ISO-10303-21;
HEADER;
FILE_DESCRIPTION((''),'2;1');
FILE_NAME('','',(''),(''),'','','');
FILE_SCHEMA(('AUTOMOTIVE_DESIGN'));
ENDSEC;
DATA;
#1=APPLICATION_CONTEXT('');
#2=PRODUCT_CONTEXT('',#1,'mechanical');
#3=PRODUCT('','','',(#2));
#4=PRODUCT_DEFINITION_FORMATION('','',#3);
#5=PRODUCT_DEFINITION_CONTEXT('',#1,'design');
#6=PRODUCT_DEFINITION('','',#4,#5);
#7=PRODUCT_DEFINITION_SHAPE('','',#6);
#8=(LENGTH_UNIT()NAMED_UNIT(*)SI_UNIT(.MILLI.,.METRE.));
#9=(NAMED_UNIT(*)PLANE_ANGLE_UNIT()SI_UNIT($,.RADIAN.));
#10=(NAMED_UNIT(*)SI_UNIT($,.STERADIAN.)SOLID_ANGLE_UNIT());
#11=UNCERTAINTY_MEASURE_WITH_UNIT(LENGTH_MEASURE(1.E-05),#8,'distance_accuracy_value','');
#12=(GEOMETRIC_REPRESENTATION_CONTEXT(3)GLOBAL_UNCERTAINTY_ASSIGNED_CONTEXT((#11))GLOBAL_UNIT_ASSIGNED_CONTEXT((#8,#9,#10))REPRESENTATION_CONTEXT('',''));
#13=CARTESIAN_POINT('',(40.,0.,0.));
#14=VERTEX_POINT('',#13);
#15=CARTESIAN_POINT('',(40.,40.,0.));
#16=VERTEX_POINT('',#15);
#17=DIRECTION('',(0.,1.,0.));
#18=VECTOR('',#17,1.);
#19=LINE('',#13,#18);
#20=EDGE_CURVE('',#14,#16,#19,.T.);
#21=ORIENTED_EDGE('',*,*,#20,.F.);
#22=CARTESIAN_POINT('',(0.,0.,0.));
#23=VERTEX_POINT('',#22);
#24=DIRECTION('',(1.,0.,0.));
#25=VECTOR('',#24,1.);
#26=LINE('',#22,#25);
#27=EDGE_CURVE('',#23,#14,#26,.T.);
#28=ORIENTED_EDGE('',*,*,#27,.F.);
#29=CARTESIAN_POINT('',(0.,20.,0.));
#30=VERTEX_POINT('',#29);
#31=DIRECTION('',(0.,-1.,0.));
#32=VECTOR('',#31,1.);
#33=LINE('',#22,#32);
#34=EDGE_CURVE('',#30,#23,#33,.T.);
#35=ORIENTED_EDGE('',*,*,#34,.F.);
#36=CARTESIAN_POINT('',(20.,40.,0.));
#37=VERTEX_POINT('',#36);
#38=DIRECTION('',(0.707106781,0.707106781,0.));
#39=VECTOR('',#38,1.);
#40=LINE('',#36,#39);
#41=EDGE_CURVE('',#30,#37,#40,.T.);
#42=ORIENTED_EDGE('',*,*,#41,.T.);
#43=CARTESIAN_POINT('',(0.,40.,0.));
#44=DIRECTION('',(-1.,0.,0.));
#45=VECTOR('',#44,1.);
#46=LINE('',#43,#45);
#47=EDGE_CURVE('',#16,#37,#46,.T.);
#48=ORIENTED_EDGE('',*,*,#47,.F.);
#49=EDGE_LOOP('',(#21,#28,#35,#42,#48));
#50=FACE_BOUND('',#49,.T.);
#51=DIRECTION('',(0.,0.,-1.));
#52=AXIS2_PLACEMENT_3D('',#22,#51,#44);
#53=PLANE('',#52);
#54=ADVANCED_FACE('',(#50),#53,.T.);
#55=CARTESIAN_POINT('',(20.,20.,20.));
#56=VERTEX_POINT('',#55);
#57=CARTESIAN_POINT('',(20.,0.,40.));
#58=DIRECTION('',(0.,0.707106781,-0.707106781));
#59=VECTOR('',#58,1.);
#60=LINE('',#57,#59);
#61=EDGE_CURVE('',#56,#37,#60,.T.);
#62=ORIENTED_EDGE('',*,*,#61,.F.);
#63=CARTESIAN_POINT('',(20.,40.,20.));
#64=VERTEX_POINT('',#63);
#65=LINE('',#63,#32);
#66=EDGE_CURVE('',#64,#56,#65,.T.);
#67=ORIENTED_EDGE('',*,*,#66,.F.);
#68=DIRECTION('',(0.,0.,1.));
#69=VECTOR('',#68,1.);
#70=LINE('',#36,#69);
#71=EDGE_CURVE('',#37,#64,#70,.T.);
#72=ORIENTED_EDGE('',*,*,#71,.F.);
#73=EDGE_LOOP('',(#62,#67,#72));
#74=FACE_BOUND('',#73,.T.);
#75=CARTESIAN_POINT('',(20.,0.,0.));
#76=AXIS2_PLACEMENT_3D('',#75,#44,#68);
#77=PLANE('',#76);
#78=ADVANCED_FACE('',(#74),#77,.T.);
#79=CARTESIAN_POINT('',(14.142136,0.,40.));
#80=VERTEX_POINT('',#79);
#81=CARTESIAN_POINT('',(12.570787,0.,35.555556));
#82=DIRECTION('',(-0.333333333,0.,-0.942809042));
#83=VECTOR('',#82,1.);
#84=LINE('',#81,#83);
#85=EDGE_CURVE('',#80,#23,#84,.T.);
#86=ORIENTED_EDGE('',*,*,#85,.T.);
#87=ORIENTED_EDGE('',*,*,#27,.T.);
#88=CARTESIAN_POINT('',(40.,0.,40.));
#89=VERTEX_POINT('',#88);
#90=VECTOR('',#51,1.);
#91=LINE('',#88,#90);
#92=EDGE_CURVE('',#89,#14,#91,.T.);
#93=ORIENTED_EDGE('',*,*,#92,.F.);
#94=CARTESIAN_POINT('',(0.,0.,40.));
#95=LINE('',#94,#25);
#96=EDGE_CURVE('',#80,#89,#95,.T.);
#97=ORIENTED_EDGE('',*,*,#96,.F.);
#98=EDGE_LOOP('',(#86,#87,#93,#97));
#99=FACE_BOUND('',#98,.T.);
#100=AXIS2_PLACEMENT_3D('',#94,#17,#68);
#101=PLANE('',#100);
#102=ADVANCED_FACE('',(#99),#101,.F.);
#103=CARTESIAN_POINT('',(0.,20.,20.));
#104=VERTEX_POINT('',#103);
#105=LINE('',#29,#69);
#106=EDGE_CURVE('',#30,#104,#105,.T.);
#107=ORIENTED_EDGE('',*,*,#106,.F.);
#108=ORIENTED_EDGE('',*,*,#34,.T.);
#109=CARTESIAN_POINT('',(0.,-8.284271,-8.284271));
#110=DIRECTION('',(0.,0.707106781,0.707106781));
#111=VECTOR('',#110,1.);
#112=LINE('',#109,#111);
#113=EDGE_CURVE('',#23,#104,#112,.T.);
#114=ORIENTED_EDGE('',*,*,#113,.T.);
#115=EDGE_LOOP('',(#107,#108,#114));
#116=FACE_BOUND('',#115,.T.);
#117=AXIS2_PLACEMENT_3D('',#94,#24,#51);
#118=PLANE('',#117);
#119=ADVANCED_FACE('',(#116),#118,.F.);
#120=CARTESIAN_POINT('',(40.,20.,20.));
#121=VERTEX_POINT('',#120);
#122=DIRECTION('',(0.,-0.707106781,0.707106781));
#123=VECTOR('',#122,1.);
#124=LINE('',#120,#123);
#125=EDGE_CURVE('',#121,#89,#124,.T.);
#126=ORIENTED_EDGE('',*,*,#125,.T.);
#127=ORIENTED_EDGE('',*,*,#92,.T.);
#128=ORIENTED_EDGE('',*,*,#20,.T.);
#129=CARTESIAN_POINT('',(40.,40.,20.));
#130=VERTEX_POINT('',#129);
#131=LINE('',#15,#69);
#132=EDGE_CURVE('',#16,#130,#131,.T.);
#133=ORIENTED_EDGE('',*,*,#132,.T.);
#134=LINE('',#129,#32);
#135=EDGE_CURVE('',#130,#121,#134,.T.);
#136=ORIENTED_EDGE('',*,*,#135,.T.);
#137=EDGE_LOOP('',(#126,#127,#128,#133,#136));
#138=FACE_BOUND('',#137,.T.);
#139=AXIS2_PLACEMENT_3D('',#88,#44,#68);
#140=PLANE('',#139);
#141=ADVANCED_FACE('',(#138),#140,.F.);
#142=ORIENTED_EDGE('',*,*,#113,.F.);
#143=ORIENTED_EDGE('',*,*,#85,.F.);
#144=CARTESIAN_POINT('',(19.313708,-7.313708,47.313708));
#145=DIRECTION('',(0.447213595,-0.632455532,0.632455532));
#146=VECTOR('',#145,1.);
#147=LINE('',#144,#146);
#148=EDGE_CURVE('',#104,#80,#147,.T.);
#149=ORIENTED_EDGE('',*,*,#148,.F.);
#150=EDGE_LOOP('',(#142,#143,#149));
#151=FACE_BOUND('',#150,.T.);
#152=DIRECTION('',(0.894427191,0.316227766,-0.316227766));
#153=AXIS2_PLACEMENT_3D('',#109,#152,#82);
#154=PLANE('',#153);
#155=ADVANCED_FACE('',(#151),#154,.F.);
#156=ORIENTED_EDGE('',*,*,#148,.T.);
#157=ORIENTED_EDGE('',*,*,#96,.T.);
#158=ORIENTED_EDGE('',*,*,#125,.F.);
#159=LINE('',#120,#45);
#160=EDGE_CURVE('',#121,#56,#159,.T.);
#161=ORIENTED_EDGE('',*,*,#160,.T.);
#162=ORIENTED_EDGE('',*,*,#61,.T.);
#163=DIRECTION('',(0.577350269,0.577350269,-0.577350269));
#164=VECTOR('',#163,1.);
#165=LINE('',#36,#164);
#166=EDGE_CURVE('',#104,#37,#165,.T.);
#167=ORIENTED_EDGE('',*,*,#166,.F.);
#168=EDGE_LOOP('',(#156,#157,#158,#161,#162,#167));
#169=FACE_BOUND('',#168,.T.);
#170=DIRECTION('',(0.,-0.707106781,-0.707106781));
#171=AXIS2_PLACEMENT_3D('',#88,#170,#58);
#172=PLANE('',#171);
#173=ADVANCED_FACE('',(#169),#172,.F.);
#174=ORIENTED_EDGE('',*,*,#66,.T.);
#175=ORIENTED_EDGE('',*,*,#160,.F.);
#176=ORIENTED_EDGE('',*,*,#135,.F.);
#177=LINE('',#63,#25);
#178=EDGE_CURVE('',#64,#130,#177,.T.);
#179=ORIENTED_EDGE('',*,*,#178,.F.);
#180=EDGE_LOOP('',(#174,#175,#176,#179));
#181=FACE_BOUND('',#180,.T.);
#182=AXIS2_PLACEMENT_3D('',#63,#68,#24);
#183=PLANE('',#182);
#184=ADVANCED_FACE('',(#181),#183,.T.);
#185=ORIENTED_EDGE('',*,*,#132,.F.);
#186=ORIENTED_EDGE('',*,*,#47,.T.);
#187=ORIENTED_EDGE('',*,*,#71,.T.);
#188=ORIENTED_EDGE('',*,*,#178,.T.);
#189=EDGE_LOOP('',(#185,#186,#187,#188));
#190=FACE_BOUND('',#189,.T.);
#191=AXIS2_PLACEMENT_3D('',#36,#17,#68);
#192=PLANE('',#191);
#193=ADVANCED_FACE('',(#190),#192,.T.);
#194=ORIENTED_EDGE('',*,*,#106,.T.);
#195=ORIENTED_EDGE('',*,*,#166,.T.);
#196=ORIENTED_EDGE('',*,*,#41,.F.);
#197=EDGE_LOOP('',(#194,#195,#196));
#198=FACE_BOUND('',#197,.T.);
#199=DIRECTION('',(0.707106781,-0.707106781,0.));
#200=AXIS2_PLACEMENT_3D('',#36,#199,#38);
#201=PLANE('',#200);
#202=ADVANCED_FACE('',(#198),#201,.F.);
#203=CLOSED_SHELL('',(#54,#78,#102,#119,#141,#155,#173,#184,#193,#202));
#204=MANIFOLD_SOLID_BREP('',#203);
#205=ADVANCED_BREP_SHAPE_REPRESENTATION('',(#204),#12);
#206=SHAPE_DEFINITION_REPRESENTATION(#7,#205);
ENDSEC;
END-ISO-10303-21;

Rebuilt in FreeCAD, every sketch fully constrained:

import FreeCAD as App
import Part
import Sketcher

V = App.Vector
Q = App.Units.Quantity

doc = App.newDocument("Part")
body = doc.addObject("PartDesign::Body", "Body")

# Sketch on XY plane
sketch1 = body.newObject("Sketcher::SketchObject", "Sketch")
sketch1.AttachmentSupport = (doc.getObject("XY_Plane"), [""])
sketch1.MapMode = "FlatFace"
sketch1.addGeometry([
    Part.LineSegment(V(0, 40, 0), V(0, 0, 0)),
    Part.LineSegment(V(0, 0, 0), V(40, 0, 0)),
    Part.LineSegment(V(40, 0, 0), V(40, 40, 0)),
    Part.LineSegment(V(40, 40, 0), V(0, 40, 0)),
], False)
sketch1.addConstraint([
    Sketcher.Constraint("Coincident", 0, 2, 1, 1),
    Sketcher.Constraint("Coincident", 1, 2, 2, 1),
    Sketcher.Constraint("Coincident", 2, 2, 3, 1),
    Sketcher.Constraint("Coincident", 3, 2, 0, 1),
    Sketcher.Constraint("Vertical", 0),
    Sketcher.Constraint("Horizontal", 1),
    Sketcher.Constraint("Vertical", 2),
    Sketcher.Constraint("Horizontal", 3),
    Sketcher.Constraint("Coincident", 0, 2, -1, 1),
    Sketcher.Constraint("Equal", 3, 0),
    Sketcher.Constraint("DistanceX", 1, 1, 1, 2, Q("40 mm")),
])
pad1 = body.newObject("PartDesign::Pad", "Pad")
pad1.Profile = sketch1
pad1.Length = 40

# Sketch on XY plane
sketch2 = body.newObject("Sketcher::SketchObject", "Sketch001")
sketch2.AttachmentSupport = (doc.getObject("XY_Plane"), [""])
sketch2.MapMode = "FlatFace"
sketch2.AttachmentOffset = App.Placement(V(0, 0, 40), App.Rotation())
sketch2.addGeometry([
    Part.LineSegment(V(0, 40, 0), V(0, 20, 0)),
    Part.LineSegment(V(0, 20, 0), V(20, 40, 0)),
    Part.LineSegment(V(20, 40, 0), V(0, 40, 0)),
], False)
sketch2.addConstraint([
    Sketcher.Constraint("Coincident", 0, 2, 1, 1),
    Sketcher.Constraint("Coincident", 1, 2, 2, 1),
    Sketcher.Constraint("Coincident", 2, 2, 0, 1),
    Sketcher.Constraint("Vertical", 0),
    Sketcher.Constraint("Horizontal", 2),
    Sketcher.Constraint("PointOnObject", 0, 2, -2),
    Sketcher.Constraint("Equal", 2, 0),
    Sketcher.Constraint("DistanceX", 2, 2, 2, 1, Q("20 mm")),
    Sketcher.Constraint("DistanceY", -1, 1, 0, 2, Q("20 mm")),
])
pocket1 = body.newObject("PartDesign::Pocket", "Pocket")
pocket1.Profile = sketch2
pocket1.Length = 40

# Sketch on YZ plane
sketch3 = body.newObject("Sketcher::SketchObject", "Sketch002")
sketch3.AttachmentSupport = (doc.getObject("YZ_Plane"), [""])
sketch3.MapMode = "FlatFace"
sketch3.addGeometry([
    Part.LineSegment(V(40, 0, 0), V(0, 40, 0)),
    Part.LineSegment(V(0, 40, 0), V(40, 40, 0)),
    Part.LineSegment(V(40, 40, 0), V(40, 0, 0)),
], False)
sketch3.addConstraint([
    Sketcher.Constraint("Coincident", 0, 2, 1, 1),
    Sketcher.Constraint("Coincident", 1, 2, 2, 1),
    Sketcher.Constraint("Coincident", 2, 2, 0, 1),
    Sketcher.Constraint("Horizontal", 1),
    Sketcher.Constraint("Vertical", 2),
    Sketcher.Constraint("PointOnObject", 0, 2, -2),
    Sketcher.Constraint("PointOnObject", 2, 2, -1),
    Sketcher.Constraint("Equal", 1, 2),
    Sketcher.Constraint("DistanceX", 1, 1, 1, 2, Q("40 mm")),
])
pocket2 = body.newObject("PartDesign::Pocket", "Pocket001")
pocket2.Profile = sketch3
pocket2.Length = 40
pocket2.Reversed = True

# Sketch on an angled plane
sketch4 = body.newObject("Sketcher::SketchObject", "Sketch003")
sketch4.Placement = App.Placement(V(0, 20, 20), App.Rotation(V(1, 0, 0), V(0, 0.707106781, -0.707106781), V(0, 0.707106781, 0.707106781), "ZXY"))
sketch4.addGeometry([
    Part.LineSegment(V(20, -40, 0), V(0, 0, 0)),
    Part.LineSegment(V(0, 0, 0), V(0, -40, 0)),
    Part.LineSegment(V(0, -40, 0), V(20, -40, 0)),
], False)
sketch4.addConstraint([
    Sketcher.Constraint("Coincident", 0, 2, 1, 1),
    Sketcher.Constraint("Coincident", 1, 2, 2, 1),
    Sketcher.Constraint("Coincident", 2, 2, 0, 1),
    Sketcher.Constraint("Vertical", 1),
    Sketcher.Constraint("Horizontal", 2),
    Sketcher.Constraint("Coincident", 0, 2, -1, 1),
    Sketcher.Constraint("DistanceX", 2, 1, 2, 2, Q("20 mm")),
    Sketcher.Constraint("DistanceY", 1, 2, 1, 1, Q("40 mm")),
])
pocket3 = body.newObject("PartDesign::Pocket", "Pocket002")
pocket3.Profile = sketch4
pocket3.Length = 40

# Sketch on YZ plane
sketch5 = body.newObject("Sketcher::SketchObject", "Sketch004")
sketch5.AttachmentSupport = (doc.getObject("YZ_Plane"), [""])
sketch5.MapMode = "FlatFace"
sketch5.AttachmentOffset = App.Placement(V(0, 0, 40), App.Rotation())
sketch5.addGeometry([
    Part.LineSegment(V(40, 20, 0), V(0, 20, 0)),
    Part.LineSegment(V(0, 20, 0), V(0, 0, 0)),
    Part.LineSegment(V(0, 0, 0), V(40, 0, 0)),
    Part.LineSegment(V(40, 0, 0), V(40, 20, 0)),
], False)
sketch5.addConstraint([
    Sketcher.Constraint("Coincident", 0, 2, 1, 1),
    Sketcher.Constraint("Coincident", 1, 2, 2, 1),
    Sketcher.Constraint("Coincident", 2, 2, 3, 1),
    Sketcher.Constraint("Coincident", 3, 2, 0, 1),
    Sketcher.Constraint("Horizontal", 0),
    Sketcher.Constraint("Vertical", 1),
    Sketcher.Constraint("Horizontal", 2),
    Sketcher.Constraint("Vertical", 3),
    Sketcher.Constraint("Coincident", 1, 2, -1, 1),
    Sketcher.Constraint("DistanceX", 0, 2, 0, 1, Q("40 mm")),
    Sketcher.Constraint("DistanceY", 1, 2, 1, 1, Q("20 mm")),
])
pad2 = body.newObject("PartDesign::Pad", "Pad001")
pad2.Profile = sketch5
pad2.Length = 20
pad2.Reversed = True

doc.recompute()
